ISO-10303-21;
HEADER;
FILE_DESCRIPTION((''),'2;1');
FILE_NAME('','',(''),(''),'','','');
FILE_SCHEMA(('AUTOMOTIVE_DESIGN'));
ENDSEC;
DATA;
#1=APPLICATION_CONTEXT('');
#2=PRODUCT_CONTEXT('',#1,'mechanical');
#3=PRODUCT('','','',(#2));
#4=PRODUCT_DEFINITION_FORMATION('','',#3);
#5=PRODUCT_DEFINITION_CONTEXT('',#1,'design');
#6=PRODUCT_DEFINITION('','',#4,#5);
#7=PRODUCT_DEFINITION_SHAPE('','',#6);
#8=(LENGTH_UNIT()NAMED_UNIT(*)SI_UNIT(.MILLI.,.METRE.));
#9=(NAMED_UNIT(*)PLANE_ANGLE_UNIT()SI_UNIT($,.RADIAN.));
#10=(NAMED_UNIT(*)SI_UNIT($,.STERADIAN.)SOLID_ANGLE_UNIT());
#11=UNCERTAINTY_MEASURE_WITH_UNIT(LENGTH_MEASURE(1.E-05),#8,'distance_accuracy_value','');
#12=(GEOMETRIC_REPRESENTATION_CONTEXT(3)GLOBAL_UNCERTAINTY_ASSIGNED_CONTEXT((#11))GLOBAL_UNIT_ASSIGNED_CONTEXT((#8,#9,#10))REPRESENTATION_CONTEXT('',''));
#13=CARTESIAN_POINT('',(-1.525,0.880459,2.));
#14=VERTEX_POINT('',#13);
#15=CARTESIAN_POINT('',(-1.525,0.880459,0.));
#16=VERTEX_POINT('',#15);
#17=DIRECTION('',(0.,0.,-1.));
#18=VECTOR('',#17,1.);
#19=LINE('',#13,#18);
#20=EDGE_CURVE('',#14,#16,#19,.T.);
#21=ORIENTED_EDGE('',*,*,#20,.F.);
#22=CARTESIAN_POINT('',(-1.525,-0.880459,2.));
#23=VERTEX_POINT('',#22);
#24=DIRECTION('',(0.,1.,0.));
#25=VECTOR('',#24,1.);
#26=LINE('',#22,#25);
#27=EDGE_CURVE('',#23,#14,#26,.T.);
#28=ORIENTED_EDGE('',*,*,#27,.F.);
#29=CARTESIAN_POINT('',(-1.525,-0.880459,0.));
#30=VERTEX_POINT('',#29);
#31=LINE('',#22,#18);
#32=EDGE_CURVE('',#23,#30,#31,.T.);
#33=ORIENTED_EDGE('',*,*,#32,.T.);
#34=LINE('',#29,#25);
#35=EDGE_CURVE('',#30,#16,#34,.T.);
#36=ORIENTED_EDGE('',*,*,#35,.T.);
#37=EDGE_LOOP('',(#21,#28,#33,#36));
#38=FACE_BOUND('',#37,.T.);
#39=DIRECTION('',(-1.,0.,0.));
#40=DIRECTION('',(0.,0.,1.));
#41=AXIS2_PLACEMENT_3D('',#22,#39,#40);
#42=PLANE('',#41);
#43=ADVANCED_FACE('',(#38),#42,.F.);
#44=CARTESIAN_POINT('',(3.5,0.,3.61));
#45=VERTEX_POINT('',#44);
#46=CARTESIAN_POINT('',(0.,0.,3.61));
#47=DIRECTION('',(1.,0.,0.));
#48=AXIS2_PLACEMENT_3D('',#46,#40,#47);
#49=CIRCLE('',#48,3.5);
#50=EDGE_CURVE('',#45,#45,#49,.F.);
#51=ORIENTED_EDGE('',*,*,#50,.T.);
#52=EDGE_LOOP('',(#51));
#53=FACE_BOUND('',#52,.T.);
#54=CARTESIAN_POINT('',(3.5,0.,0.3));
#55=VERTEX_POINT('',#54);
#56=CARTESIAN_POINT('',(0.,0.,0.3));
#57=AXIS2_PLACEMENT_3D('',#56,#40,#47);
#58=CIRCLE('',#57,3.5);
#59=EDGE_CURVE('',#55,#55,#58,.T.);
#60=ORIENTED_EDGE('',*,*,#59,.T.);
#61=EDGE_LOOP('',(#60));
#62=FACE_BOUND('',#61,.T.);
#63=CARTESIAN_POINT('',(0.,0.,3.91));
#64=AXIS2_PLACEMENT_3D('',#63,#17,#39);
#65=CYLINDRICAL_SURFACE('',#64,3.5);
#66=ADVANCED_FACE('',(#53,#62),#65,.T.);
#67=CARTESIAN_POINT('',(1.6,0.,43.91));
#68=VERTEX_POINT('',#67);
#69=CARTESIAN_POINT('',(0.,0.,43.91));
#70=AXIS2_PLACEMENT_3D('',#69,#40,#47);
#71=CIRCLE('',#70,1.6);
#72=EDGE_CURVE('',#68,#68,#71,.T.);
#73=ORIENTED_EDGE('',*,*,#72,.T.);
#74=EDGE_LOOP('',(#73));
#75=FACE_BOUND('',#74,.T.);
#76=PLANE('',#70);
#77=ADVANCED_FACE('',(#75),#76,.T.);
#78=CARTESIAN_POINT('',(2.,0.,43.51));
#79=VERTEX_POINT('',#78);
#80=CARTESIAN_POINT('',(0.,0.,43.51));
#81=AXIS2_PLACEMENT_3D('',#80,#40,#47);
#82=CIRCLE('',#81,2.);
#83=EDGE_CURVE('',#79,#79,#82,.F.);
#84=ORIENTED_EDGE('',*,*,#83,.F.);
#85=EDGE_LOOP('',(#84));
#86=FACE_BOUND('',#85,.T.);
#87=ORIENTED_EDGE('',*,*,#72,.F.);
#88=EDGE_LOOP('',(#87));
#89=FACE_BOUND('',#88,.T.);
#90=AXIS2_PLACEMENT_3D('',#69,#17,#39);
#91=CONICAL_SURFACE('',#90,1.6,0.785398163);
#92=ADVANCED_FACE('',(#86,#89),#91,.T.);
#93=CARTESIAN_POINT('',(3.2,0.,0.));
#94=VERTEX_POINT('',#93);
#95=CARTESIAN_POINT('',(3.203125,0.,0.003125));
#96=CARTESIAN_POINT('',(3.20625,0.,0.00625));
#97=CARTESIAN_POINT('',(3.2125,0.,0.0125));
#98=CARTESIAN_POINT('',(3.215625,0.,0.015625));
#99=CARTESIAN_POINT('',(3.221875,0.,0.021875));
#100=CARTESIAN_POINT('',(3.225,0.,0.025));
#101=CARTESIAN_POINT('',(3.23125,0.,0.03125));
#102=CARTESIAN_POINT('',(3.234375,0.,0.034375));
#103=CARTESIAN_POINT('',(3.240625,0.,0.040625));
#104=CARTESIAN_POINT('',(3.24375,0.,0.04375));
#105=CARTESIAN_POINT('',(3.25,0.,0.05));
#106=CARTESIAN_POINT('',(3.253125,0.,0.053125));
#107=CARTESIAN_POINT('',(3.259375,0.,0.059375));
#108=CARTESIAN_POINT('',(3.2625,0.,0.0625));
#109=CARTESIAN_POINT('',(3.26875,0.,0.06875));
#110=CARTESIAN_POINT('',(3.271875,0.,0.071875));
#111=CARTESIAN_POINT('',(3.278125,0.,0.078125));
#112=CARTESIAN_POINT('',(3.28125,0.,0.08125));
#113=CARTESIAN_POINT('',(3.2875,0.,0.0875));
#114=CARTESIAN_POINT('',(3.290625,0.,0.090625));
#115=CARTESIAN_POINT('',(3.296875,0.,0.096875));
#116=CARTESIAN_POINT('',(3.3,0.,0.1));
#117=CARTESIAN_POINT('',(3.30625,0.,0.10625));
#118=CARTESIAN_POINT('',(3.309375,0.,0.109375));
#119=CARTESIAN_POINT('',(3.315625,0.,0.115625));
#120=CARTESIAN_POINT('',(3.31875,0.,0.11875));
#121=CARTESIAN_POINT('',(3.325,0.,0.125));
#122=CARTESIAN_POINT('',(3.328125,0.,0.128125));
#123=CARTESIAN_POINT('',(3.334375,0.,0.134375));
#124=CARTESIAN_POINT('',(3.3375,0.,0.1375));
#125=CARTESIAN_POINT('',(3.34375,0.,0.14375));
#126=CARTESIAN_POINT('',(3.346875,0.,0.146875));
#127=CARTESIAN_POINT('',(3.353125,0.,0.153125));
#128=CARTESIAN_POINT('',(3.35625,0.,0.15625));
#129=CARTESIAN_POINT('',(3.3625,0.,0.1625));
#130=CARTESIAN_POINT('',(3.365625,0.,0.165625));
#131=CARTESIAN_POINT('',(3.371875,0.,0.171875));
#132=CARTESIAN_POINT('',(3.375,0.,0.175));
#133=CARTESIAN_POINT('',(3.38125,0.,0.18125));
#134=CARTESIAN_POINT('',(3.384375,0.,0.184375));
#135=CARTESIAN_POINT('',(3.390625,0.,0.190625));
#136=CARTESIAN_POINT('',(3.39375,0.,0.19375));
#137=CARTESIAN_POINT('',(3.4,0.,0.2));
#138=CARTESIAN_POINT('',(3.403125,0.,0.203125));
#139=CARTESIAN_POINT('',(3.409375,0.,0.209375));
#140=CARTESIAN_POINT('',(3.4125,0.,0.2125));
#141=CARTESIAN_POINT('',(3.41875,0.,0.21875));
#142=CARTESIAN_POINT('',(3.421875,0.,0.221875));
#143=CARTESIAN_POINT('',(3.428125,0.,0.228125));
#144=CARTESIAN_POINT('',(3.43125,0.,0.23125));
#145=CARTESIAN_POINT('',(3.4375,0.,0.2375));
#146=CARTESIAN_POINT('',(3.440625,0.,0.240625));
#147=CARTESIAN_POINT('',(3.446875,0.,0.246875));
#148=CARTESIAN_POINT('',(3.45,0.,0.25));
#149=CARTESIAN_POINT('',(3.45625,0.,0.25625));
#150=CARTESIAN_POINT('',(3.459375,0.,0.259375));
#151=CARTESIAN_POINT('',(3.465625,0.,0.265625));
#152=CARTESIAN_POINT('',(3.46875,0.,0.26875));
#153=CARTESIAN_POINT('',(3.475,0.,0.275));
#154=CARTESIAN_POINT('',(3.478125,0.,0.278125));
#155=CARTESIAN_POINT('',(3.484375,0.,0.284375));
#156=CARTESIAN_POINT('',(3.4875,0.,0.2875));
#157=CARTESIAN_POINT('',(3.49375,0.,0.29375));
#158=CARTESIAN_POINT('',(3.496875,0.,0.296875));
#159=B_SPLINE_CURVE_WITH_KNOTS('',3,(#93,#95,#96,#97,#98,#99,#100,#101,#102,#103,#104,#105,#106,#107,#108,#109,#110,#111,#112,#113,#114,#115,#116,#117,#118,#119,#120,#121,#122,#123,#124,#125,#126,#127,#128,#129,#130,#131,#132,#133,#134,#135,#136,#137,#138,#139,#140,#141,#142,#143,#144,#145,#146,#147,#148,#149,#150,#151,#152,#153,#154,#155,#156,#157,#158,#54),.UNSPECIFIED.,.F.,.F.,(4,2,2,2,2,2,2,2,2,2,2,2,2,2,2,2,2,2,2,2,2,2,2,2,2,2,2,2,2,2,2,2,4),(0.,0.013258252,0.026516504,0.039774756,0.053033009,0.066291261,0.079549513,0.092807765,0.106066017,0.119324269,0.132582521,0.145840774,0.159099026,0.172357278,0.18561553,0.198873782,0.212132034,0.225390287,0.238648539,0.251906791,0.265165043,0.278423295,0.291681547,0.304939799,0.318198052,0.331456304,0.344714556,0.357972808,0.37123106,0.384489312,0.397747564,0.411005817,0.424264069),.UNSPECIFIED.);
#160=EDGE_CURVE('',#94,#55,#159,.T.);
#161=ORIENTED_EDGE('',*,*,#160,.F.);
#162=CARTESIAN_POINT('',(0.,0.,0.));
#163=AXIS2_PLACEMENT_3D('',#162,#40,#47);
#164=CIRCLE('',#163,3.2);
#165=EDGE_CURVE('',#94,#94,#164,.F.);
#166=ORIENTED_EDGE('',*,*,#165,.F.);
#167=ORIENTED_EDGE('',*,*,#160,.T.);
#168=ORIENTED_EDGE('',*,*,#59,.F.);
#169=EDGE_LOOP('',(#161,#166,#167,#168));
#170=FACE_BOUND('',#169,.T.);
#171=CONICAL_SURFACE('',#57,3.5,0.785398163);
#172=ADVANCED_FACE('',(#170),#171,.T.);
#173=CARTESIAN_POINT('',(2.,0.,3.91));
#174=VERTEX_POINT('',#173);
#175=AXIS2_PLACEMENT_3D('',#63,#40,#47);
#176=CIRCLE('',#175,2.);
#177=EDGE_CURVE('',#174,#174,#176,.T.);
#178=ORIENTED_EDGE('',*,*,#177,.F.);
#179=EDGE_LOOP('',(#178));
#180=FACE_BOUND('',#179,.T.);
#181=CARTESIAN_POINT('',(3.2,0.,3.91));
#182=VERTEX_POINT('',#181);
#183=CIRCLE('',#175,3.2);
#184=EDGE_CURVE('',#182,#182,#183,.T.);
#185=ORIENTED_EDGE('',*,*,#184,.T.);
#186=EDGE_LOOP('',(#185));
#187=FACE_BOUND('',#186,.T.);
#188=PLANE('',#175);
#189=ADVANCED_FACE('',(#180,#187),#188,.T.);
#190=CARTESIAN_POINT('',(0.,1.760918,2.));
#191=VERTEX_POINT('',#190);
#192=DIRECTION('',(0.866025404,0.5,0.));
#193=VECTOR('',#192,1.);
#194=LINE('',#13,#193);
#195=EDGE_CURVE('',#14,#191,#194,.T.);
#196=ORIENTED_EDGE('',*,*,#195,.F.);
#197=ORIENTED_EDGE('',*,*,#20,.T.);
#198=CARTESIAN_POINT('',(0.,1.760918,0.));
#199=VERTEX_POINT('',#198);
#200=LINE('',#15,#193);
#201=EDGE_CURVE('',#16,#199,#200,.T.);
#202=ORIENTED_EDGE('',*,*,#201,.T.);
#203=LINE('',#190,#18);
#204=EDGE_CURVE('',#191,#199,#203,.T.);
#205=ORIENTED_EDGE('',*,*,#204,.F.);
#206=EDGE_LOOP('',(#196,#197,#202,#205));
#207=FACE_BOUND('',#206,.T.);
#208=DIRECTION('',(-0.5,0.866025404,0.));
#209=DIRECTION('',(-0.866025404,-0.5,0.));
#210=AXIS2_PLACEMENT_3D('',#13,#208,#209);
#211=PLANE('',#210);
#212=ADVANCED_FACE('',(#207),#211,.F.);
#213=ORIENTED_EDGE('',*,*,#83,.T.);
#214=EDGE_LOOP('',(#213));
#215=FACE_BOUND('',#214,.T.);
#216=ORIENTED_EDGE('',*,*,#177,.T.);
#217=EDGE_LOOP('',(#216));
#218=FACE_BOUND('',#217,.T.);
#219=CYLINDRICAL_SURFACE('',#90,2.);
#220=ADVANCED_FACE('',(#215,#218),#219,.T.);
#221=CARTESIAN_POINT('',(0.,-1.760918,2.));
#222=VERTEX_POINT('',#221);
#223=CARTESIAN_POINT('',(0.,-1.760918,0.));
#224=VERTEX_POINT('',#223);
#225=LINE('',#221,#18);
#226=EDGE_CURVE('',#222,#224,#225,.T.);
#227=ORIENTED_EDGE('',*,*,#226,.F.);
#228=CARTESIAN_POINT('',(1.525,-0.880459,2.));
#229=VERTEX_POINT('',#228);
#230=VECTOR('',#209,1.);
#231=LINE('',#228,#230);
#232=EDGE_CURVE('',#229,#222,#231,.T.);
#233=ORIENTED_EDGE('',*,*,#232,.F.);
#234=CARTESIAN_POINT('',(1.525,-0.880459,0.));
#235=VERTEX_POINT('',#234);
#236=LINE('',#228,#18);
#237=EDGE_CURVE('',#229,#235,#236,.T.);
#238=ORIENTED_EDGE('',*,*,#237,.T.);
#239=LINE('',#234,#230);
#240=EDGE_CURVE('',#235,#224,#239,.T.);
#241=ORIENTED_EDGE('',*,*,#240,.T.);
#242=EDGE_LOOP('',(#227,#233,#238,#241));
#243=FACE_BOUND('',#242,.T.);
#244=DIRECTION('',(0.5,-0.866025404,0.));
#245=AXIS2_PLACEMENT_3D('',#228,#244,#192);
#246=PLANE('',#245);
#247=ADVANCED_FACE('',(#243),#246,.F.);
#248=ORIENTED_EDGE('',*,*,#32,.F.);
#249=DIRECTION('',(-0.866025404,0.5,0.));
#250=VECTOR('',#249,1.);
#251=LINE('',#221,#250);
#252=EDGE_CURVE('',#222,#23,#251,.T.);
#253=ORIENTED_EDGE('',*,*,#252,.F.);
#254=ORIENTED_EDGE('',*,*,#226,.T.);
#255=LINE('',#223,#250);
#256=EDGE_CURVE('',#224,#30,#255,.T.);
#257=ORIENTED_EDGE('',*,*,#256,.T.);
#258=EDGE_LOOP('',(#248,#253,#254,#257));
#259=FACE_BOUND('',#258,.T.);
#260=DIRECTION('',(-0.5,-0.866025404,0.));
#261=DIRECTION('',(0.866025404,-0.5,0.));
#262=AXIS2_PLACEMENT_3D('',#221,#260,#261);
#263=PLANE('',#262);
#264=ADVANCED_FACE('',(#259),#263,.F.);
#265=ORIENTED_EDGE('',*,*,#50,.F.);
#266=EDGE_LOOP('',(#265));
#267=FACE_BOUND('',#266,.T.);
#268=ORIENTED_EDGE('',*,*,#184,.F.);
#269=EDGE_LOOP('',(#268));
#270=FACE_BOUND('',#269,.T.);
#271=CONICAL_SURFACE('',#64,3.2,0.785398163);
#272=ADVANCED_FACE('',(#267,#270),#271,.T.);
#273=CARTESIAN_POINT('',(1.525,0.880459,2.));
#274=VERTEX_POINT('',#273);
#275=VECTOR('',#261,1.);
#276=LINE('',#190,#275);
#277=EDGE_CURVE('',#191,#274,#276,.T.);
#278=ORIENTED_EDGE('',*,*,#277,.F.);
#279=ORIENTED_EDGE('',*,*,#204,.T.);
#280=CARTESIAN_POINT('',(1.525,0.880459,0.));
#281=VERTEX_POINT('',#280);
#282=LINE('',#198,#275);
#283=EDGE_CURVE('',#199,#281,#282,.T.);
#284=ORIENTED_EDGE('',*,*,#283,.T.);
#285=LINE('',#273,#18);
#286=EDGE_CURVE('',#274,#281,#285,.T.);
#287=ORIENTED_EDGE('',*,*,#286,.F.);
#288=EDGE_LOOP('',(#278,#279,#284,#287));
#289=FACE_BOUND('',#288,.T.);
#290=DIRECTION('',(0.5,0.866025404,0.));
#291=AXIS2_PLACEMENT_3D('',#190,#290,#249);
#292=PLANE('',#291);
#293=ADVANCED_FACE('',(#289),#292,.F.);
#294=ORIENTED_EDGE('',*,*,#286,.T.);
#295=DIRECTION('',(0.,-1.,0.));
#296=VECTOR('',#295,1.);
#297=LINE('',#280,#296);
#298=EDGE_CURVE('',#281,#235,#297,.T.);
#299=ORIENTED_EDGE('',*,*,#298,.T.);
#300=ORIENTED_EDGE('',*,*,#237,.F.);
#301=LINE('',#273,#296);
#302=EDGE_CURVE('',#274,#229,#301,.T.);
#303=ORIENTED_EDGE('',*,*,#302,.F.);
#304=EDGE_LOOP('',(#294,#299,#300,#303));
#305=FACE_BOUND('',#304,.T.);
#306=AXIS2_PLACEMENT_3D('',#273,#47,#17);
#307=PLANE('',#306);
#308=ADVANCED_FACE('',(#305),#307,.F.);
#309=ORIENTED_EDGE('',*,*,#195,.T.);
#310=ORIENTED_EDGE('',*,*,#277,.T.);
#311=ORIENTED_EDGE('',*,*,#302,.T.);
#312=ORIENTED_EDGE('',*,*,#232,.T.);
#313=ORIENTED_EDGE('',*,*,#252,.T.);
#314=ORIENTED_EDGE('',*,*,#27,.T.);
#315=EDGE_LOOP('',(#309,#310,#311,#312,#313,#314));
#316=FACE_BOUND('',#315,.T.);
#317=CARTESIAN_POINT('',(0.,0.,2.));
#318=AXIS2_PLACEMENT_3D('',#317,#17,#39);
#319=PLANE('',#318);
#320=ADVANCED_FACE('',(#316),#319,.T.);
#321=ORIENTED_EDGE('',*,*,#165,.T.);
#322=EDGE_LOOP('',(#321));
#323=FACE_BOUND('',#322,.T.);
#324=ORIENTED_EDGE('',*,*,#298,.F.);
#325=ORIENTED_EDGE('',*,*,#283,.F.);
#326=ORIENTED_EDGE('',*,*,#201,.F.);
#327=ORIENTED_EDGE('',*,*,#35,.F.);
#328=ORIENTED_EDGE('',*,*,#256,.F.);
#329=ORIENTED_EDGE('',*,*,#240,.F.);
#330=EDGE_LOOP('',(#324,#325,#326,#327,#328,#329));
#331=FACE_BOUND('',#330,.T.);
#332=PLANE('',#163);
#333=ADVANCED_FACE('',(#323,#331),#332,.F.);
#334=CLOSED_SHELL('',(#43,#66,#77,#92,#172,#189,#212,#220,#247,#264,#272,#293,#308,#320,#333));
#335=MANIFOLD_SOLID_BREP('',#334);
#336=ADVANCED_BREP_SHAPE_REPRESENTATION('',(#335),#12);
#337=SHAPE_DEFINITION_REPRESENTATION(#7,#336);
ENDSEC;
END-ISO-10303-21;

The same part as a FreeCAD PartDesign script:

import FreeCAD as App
import Part
import Sketcher

V = App.Vector
Q = App.Units.Quantity


def edges_at(feature, points):
    """Names of the edges that pass closest to the given points."""
    edges = feature.Shape.Edges
    near = lambda p: min(range(len(edges)), key=lambda i: edges[i].distToShape(Part.Vertex(*p))[0])
    return sorted({f"Edge{near(p) + 1}" for p in points})

doc = App.newDocument("Part")
body = doc.addObject("PartDesign::Body", "Body")

# Sketch on XY plane
sketch1 = body.newObject("Sketcher::SketchObject", "Sketch")
sketch1.AttachmentSupport = (doc.getObject("XY_Plane"), [""])
sketch1.MapMode = "FlatFace"
sketch1.addGeometry(Part.Circle(V(0, 0, 0), V(0, 0, 1), 3.5), False)
sketch1.addConstraint(Sketcher.Constraint("Coincident", 0, 3, -1, 1))
sketch1.addConstraint(Sketcher.Constraint("Diameter", 0, 7.0))
pad1 = body.newObject("PartDesign::Pad", "Pad")
pad1.Profile = sketch1
pad1.Length = 3.91

# Sketch on XY plane
sketch2 = body.newObject("Sketcher::SketchObject", "Sketch001")
sketch2.AttachmentSupport = (doc.getObject("XY_Plane"), [""])
sketch2.MapMode = "FlatFace"
sketch2.AttachmentOffset = App.Placement(V(0, 0, 3.91), App.Rotation())
sketch2.addGeometry(Part.Circle(V(0, 0, 0), V(0, 0, 1), 2), False)
sketch2.addConstraint(Sketcher.Constraint("Coincident", 0, 3, -1, 1))
sketch2.addConstraint(Sketcher.Constraint("Diameter", 0, 4.0))
pad2 = body.newObject("PartDesign::Pad", "Pad001")
pad2.Profile = sketch2
pad2.Length = 40

# Sketch on XY plane
sketch3 = body.newObject("Sketcher::SketchObject", "Sketch002")
sketch3.AttachmentSupport = (doc.getObject("XY_Plane"), [""])
sketch3.MapMode = "FlatFace"
sketch3.addGeometry(Part.LineSegment(V(0, 1.8, 0), V(1.5, 0.9, 0)), False)
sketch3.addGeometry(Part.LineSegment(V(1.5, 0.9, 0), V(1.5, -0.9, 0)), False)
sketch3.addGeometry(Part.LineSegment(V(1.5, -0.9, 0), V(0, -1.8, 0)), False)
sketch3.addGeometry(Part.LineSegment(V(0, -1.8, 0), V(-1.5, -0.9, 0)), False)
sketch3.addGeometry(Part.LineSegment(V(-1.5, -0.9, 0), V(-1.5, 0.9, 0)), False)
sketch3.addGeometry(Part.LineSegment(V(-1.5, 0.9, 0), V(0, 1.8, 0)), False)
sketch3.addConstraint(Sketcher.Constraint("Coincident", 0, 2, 1, 1))
sketch3.addConstraint(Sketcher.Constraint("Coincident", 1, 2, 2, 1))
sketch3.addConstraint(Sketcher.Constraint("Coincident", 2, 2, 3, 1))
sketch3.addConstraint(Sketcher.Constraint("Coincident", 3, 2, 4, 1))
sketch3.addConstraint(Sketcher.Constraint("Coincident", 4, 2, 5, 1))
sketch3.addConstraint(Sketcher.Constraint("Coincident", 5, 2, 0, 1))
sketch3.addConstraint(Sketcher.Constraint("Vertical", 1))
sketch3.addConstraint(Sketcher.Constraint("Vertical", 4))
sketch3.addConstraint(Sketcher.Constraint("Symmetric", 0, 2, 3, 2, -1, 1))
sketch3.addConstraint(Sketcher.Constraint("Symmetric", 2, 2, 5, 2, -1, 1))
sketch3.addConstraint(Sketcher.Constraint("PointOnObject", 2, 2, -2))
sketch3.addConstraint(Sketcher.Constraint("Parallel", 2, 5))
sketch3.addConstraint(Sketcher.Constraint("Horizontal", 1, 2, 3, 2))
sketch3.addConstraint(Sketcher.Constraint("Angle", 0, Q("-30 deg")))
sketch3.addConstraint(Sketcher.Constraint("DistanceX", 3, 2, 1, 2, 3.05))
sketch3.addConstraint(Sketcher.Constraint("DistanceY", 1, 2, 1, 1, 1.760918))
pocket1 = body.newObject("PartDesign::Pocket", "Pocket")
pocket1.Profile = sketch3
pocket1.Length = 2
pocket1.Reversed = True
doc.recompute()

chamfer = body.newObject("PartDesign::Chamfer", "Chamfer")
chamfer.Base = (pocket1, edges_at(pocket1, [(-2, 0, 43.91)]))
chamfer.Size = 0.4
doc.recompute()

chamfer2 = body.newObject("PartDesign::Chamfer", "Chamfer001")
chamfer2.Base = (chamfer, edges_at(chamfer, [(-3.5, 0, 0), (-3.5, 0, 3.91)]))
chamfer2.Size = 0.3

doc.recompute()
